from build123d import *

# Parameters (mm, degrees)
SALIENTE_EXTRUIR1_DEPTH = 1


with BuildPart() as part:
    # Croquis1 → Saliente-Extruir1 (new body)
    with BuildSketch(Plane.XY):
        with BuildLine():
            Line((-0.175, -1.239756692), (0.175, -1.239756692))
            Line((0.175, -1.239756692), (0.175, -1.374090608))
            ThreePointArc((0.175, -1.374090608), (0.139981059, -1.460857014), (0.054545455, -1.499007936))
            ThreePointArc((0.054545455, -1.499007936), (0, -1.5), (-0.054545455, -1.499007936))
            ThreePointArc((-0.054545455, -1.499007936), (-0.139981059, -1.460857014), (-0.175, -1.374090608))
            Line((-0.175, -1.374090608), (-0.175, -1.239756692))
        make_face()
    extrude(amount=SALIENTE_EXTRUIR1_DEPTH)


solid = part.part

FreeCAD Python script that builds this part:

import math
import FreeCAD as App
import Part
import Sketcher
Q = App.Units.Quantity

doc = App.newDocument("Part")
params = doc.addObject("Spreadsheet::Sheet", "Params")
for row, (alias, value) in enumerate([
    ("sketch1_radius", "1.499999 mm"),
    ("sketch1_width", "0.35 mm"),
    ("pad1_length", "1 mm"),
], start=1):
    params.set(f"A{row}", alias)
    params.set(f"B{row}", "=" + value)
    params.setAlias(f"B{row}", alias)

body = doc.addObject("PartDesign::Body", "Body")

# Sketch on XY plane
sketch1 = body.newObject("Sketcher::SketchObject", "Sketch")
sketch1.AttachmentSupport = (doc.getObject("XY_Plane"), [""])
sketch1.MapMode = "FlatFace"
sketch1.addGeometry([
    Part.LineSegment(App.Vector(0.175, -1.239757, 0), App.Vector(-0.175, -1.239757, 0)),  # 0
    Part.LineSegment(App.Vector(-0.175, -1.239757, 0), App.Vector(-0.175, -1.374091, 0)),  # 1
    Part.ArcOfCircle(Part.Circle(App.Vector(-0.05, -1.374091, 0), App.Vector(0, 0, 1), 0.125), math.radians(179.999999), math.radians(267.916058)),  # 2
    Part.ArcOfCircle(Part.Circle(App.Vector(0, -0.000001, 0), App.Vector(0, 0, 1), 1.499999), math.radians(-92.083943), math.radians(-87.916057)),  # 3
    Part.ArcOfCircle(Part.Circle(App.Vector(0.05, -1.374091, 0), App.Vector(0, 0, 1), 0.125), math.radians(-87.916058), math.radians(0.000001)),  # 4
    Part.LineSegment(App.Vector(0.175, -1.374091, 0), App.Vector(0.175, -1.239757, 0)),  # 5
], False)
sketch1.addConstraint([
    Sketcher.Constraint("Coincident", 0, 2, 1, 1),
    Sketcher.Constraint("Tangent", 1, 2, 2, 1),
    Sketcher.Constraint("Tangent", 2, 2, 3, 1),
    Sketcher.Constraint("Tangent", 3, 2, 4, 1),
    Sketcher.Constraint("Tangent", 4, 2, 5, 1),
    Sketcher.Constraint("Coincident", 5, 2, 0, 1),
    Sketcher.Constraint("Horizontal", 0),
    Sketcher.Constraint("Vertical", 1),
    Sketcher.Constraint("Vertical", 5),
    Sketcher.Constraint("Coincident", 3, 3, -1, 1),
    Sketcher.Constraint("Equal", 2, 4),
    Sketcher.Constraint("Horizontal", 2, 3, 4, 3),
    Sketcher.Constraint("Radius", 3, Q("1.499999 mm")),
    Sketcher.Constraint("Radius", 2, Q("0.125 mm")),
    Sketcher.Constraint("DistanceX", 0, 2, 0, 1, Q("0.35 mm")),
    Sketcher.Constraint("DistanceY", 1, 2, 1, 1, Q("0.134334 mm")),
])
sketch1.setExpression("Constraints[12]", "Params.sketch1_radius")
sketch1.setExpression("Constraints[14]", "Params.sketch1_width")
pad1 = body.newObject("PartDesign::Pad", "Pad")
pad1.Profile = sketch1
pad1.setExpression("Length", "Params.pad1_length")

doc.recompute()
